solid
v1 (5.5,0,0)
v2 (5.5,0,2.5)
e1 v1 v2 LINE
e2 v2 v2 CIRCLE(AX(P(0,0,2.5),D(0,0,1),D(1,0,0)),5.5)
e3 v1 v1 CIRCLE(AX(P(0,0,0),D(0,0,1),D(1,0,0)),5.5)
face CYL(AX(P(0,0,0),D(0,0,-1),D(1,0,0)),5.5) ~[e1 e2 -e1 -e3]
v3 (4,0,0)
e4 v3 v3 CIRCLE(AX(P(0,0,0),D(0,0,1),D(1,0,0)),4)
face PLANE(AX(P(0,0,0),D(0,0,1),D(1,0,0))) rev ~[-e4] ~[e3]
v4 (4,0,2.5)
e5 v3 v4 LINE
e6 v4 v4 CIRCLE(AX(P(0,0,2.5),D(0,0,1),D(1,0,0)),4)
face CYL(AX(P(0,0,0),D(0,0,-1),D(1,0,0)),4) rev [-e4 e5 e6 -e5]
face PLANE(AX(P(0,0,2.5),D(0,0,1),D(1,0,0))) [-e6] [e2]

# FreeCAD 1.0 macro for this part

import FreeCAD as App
import Part
import Sketcher

V = App.Vector

doc = App.newDocument("Part")
body = doc.addObject("PartDesign::Body", "Body")

# Sketch on XY plane
sketch1 = body.newObject("Sketcher::SketchObject", "Sketch")
sketch1.AttachmentSupport = (doc.getObject("XY_Plane"), [""])
sketch1.MapMode = "FlatFace"
sketch1.addGeometry(Part.Circle(V(0, 0, 0), V(0, 0, 1), 5.5), False)
sketch1.addGeometry(Part.Circle(V(0, 0, 0), V(0, 0, 1), 4), False)
sketch1.addConstraint(Sketcher.Constraint("Coincident", 0, 3, -1, 1))
sketch1.addConstraint(Sketcher.Constraint("Coincident", 1, 3, -1, 1))
sketch1.addConstraint(Sketcher.Constraint("Diameter", 0, 11.0))
sketch1.addConstraint(Sketcher.Constraint("Diameter", 1, 8.0))
pad1 = body.newObject("PartDesign::Pad", "Pad")
pad1.Profile = sketch1
pad1.Length = 2.5

doc.recompute()
